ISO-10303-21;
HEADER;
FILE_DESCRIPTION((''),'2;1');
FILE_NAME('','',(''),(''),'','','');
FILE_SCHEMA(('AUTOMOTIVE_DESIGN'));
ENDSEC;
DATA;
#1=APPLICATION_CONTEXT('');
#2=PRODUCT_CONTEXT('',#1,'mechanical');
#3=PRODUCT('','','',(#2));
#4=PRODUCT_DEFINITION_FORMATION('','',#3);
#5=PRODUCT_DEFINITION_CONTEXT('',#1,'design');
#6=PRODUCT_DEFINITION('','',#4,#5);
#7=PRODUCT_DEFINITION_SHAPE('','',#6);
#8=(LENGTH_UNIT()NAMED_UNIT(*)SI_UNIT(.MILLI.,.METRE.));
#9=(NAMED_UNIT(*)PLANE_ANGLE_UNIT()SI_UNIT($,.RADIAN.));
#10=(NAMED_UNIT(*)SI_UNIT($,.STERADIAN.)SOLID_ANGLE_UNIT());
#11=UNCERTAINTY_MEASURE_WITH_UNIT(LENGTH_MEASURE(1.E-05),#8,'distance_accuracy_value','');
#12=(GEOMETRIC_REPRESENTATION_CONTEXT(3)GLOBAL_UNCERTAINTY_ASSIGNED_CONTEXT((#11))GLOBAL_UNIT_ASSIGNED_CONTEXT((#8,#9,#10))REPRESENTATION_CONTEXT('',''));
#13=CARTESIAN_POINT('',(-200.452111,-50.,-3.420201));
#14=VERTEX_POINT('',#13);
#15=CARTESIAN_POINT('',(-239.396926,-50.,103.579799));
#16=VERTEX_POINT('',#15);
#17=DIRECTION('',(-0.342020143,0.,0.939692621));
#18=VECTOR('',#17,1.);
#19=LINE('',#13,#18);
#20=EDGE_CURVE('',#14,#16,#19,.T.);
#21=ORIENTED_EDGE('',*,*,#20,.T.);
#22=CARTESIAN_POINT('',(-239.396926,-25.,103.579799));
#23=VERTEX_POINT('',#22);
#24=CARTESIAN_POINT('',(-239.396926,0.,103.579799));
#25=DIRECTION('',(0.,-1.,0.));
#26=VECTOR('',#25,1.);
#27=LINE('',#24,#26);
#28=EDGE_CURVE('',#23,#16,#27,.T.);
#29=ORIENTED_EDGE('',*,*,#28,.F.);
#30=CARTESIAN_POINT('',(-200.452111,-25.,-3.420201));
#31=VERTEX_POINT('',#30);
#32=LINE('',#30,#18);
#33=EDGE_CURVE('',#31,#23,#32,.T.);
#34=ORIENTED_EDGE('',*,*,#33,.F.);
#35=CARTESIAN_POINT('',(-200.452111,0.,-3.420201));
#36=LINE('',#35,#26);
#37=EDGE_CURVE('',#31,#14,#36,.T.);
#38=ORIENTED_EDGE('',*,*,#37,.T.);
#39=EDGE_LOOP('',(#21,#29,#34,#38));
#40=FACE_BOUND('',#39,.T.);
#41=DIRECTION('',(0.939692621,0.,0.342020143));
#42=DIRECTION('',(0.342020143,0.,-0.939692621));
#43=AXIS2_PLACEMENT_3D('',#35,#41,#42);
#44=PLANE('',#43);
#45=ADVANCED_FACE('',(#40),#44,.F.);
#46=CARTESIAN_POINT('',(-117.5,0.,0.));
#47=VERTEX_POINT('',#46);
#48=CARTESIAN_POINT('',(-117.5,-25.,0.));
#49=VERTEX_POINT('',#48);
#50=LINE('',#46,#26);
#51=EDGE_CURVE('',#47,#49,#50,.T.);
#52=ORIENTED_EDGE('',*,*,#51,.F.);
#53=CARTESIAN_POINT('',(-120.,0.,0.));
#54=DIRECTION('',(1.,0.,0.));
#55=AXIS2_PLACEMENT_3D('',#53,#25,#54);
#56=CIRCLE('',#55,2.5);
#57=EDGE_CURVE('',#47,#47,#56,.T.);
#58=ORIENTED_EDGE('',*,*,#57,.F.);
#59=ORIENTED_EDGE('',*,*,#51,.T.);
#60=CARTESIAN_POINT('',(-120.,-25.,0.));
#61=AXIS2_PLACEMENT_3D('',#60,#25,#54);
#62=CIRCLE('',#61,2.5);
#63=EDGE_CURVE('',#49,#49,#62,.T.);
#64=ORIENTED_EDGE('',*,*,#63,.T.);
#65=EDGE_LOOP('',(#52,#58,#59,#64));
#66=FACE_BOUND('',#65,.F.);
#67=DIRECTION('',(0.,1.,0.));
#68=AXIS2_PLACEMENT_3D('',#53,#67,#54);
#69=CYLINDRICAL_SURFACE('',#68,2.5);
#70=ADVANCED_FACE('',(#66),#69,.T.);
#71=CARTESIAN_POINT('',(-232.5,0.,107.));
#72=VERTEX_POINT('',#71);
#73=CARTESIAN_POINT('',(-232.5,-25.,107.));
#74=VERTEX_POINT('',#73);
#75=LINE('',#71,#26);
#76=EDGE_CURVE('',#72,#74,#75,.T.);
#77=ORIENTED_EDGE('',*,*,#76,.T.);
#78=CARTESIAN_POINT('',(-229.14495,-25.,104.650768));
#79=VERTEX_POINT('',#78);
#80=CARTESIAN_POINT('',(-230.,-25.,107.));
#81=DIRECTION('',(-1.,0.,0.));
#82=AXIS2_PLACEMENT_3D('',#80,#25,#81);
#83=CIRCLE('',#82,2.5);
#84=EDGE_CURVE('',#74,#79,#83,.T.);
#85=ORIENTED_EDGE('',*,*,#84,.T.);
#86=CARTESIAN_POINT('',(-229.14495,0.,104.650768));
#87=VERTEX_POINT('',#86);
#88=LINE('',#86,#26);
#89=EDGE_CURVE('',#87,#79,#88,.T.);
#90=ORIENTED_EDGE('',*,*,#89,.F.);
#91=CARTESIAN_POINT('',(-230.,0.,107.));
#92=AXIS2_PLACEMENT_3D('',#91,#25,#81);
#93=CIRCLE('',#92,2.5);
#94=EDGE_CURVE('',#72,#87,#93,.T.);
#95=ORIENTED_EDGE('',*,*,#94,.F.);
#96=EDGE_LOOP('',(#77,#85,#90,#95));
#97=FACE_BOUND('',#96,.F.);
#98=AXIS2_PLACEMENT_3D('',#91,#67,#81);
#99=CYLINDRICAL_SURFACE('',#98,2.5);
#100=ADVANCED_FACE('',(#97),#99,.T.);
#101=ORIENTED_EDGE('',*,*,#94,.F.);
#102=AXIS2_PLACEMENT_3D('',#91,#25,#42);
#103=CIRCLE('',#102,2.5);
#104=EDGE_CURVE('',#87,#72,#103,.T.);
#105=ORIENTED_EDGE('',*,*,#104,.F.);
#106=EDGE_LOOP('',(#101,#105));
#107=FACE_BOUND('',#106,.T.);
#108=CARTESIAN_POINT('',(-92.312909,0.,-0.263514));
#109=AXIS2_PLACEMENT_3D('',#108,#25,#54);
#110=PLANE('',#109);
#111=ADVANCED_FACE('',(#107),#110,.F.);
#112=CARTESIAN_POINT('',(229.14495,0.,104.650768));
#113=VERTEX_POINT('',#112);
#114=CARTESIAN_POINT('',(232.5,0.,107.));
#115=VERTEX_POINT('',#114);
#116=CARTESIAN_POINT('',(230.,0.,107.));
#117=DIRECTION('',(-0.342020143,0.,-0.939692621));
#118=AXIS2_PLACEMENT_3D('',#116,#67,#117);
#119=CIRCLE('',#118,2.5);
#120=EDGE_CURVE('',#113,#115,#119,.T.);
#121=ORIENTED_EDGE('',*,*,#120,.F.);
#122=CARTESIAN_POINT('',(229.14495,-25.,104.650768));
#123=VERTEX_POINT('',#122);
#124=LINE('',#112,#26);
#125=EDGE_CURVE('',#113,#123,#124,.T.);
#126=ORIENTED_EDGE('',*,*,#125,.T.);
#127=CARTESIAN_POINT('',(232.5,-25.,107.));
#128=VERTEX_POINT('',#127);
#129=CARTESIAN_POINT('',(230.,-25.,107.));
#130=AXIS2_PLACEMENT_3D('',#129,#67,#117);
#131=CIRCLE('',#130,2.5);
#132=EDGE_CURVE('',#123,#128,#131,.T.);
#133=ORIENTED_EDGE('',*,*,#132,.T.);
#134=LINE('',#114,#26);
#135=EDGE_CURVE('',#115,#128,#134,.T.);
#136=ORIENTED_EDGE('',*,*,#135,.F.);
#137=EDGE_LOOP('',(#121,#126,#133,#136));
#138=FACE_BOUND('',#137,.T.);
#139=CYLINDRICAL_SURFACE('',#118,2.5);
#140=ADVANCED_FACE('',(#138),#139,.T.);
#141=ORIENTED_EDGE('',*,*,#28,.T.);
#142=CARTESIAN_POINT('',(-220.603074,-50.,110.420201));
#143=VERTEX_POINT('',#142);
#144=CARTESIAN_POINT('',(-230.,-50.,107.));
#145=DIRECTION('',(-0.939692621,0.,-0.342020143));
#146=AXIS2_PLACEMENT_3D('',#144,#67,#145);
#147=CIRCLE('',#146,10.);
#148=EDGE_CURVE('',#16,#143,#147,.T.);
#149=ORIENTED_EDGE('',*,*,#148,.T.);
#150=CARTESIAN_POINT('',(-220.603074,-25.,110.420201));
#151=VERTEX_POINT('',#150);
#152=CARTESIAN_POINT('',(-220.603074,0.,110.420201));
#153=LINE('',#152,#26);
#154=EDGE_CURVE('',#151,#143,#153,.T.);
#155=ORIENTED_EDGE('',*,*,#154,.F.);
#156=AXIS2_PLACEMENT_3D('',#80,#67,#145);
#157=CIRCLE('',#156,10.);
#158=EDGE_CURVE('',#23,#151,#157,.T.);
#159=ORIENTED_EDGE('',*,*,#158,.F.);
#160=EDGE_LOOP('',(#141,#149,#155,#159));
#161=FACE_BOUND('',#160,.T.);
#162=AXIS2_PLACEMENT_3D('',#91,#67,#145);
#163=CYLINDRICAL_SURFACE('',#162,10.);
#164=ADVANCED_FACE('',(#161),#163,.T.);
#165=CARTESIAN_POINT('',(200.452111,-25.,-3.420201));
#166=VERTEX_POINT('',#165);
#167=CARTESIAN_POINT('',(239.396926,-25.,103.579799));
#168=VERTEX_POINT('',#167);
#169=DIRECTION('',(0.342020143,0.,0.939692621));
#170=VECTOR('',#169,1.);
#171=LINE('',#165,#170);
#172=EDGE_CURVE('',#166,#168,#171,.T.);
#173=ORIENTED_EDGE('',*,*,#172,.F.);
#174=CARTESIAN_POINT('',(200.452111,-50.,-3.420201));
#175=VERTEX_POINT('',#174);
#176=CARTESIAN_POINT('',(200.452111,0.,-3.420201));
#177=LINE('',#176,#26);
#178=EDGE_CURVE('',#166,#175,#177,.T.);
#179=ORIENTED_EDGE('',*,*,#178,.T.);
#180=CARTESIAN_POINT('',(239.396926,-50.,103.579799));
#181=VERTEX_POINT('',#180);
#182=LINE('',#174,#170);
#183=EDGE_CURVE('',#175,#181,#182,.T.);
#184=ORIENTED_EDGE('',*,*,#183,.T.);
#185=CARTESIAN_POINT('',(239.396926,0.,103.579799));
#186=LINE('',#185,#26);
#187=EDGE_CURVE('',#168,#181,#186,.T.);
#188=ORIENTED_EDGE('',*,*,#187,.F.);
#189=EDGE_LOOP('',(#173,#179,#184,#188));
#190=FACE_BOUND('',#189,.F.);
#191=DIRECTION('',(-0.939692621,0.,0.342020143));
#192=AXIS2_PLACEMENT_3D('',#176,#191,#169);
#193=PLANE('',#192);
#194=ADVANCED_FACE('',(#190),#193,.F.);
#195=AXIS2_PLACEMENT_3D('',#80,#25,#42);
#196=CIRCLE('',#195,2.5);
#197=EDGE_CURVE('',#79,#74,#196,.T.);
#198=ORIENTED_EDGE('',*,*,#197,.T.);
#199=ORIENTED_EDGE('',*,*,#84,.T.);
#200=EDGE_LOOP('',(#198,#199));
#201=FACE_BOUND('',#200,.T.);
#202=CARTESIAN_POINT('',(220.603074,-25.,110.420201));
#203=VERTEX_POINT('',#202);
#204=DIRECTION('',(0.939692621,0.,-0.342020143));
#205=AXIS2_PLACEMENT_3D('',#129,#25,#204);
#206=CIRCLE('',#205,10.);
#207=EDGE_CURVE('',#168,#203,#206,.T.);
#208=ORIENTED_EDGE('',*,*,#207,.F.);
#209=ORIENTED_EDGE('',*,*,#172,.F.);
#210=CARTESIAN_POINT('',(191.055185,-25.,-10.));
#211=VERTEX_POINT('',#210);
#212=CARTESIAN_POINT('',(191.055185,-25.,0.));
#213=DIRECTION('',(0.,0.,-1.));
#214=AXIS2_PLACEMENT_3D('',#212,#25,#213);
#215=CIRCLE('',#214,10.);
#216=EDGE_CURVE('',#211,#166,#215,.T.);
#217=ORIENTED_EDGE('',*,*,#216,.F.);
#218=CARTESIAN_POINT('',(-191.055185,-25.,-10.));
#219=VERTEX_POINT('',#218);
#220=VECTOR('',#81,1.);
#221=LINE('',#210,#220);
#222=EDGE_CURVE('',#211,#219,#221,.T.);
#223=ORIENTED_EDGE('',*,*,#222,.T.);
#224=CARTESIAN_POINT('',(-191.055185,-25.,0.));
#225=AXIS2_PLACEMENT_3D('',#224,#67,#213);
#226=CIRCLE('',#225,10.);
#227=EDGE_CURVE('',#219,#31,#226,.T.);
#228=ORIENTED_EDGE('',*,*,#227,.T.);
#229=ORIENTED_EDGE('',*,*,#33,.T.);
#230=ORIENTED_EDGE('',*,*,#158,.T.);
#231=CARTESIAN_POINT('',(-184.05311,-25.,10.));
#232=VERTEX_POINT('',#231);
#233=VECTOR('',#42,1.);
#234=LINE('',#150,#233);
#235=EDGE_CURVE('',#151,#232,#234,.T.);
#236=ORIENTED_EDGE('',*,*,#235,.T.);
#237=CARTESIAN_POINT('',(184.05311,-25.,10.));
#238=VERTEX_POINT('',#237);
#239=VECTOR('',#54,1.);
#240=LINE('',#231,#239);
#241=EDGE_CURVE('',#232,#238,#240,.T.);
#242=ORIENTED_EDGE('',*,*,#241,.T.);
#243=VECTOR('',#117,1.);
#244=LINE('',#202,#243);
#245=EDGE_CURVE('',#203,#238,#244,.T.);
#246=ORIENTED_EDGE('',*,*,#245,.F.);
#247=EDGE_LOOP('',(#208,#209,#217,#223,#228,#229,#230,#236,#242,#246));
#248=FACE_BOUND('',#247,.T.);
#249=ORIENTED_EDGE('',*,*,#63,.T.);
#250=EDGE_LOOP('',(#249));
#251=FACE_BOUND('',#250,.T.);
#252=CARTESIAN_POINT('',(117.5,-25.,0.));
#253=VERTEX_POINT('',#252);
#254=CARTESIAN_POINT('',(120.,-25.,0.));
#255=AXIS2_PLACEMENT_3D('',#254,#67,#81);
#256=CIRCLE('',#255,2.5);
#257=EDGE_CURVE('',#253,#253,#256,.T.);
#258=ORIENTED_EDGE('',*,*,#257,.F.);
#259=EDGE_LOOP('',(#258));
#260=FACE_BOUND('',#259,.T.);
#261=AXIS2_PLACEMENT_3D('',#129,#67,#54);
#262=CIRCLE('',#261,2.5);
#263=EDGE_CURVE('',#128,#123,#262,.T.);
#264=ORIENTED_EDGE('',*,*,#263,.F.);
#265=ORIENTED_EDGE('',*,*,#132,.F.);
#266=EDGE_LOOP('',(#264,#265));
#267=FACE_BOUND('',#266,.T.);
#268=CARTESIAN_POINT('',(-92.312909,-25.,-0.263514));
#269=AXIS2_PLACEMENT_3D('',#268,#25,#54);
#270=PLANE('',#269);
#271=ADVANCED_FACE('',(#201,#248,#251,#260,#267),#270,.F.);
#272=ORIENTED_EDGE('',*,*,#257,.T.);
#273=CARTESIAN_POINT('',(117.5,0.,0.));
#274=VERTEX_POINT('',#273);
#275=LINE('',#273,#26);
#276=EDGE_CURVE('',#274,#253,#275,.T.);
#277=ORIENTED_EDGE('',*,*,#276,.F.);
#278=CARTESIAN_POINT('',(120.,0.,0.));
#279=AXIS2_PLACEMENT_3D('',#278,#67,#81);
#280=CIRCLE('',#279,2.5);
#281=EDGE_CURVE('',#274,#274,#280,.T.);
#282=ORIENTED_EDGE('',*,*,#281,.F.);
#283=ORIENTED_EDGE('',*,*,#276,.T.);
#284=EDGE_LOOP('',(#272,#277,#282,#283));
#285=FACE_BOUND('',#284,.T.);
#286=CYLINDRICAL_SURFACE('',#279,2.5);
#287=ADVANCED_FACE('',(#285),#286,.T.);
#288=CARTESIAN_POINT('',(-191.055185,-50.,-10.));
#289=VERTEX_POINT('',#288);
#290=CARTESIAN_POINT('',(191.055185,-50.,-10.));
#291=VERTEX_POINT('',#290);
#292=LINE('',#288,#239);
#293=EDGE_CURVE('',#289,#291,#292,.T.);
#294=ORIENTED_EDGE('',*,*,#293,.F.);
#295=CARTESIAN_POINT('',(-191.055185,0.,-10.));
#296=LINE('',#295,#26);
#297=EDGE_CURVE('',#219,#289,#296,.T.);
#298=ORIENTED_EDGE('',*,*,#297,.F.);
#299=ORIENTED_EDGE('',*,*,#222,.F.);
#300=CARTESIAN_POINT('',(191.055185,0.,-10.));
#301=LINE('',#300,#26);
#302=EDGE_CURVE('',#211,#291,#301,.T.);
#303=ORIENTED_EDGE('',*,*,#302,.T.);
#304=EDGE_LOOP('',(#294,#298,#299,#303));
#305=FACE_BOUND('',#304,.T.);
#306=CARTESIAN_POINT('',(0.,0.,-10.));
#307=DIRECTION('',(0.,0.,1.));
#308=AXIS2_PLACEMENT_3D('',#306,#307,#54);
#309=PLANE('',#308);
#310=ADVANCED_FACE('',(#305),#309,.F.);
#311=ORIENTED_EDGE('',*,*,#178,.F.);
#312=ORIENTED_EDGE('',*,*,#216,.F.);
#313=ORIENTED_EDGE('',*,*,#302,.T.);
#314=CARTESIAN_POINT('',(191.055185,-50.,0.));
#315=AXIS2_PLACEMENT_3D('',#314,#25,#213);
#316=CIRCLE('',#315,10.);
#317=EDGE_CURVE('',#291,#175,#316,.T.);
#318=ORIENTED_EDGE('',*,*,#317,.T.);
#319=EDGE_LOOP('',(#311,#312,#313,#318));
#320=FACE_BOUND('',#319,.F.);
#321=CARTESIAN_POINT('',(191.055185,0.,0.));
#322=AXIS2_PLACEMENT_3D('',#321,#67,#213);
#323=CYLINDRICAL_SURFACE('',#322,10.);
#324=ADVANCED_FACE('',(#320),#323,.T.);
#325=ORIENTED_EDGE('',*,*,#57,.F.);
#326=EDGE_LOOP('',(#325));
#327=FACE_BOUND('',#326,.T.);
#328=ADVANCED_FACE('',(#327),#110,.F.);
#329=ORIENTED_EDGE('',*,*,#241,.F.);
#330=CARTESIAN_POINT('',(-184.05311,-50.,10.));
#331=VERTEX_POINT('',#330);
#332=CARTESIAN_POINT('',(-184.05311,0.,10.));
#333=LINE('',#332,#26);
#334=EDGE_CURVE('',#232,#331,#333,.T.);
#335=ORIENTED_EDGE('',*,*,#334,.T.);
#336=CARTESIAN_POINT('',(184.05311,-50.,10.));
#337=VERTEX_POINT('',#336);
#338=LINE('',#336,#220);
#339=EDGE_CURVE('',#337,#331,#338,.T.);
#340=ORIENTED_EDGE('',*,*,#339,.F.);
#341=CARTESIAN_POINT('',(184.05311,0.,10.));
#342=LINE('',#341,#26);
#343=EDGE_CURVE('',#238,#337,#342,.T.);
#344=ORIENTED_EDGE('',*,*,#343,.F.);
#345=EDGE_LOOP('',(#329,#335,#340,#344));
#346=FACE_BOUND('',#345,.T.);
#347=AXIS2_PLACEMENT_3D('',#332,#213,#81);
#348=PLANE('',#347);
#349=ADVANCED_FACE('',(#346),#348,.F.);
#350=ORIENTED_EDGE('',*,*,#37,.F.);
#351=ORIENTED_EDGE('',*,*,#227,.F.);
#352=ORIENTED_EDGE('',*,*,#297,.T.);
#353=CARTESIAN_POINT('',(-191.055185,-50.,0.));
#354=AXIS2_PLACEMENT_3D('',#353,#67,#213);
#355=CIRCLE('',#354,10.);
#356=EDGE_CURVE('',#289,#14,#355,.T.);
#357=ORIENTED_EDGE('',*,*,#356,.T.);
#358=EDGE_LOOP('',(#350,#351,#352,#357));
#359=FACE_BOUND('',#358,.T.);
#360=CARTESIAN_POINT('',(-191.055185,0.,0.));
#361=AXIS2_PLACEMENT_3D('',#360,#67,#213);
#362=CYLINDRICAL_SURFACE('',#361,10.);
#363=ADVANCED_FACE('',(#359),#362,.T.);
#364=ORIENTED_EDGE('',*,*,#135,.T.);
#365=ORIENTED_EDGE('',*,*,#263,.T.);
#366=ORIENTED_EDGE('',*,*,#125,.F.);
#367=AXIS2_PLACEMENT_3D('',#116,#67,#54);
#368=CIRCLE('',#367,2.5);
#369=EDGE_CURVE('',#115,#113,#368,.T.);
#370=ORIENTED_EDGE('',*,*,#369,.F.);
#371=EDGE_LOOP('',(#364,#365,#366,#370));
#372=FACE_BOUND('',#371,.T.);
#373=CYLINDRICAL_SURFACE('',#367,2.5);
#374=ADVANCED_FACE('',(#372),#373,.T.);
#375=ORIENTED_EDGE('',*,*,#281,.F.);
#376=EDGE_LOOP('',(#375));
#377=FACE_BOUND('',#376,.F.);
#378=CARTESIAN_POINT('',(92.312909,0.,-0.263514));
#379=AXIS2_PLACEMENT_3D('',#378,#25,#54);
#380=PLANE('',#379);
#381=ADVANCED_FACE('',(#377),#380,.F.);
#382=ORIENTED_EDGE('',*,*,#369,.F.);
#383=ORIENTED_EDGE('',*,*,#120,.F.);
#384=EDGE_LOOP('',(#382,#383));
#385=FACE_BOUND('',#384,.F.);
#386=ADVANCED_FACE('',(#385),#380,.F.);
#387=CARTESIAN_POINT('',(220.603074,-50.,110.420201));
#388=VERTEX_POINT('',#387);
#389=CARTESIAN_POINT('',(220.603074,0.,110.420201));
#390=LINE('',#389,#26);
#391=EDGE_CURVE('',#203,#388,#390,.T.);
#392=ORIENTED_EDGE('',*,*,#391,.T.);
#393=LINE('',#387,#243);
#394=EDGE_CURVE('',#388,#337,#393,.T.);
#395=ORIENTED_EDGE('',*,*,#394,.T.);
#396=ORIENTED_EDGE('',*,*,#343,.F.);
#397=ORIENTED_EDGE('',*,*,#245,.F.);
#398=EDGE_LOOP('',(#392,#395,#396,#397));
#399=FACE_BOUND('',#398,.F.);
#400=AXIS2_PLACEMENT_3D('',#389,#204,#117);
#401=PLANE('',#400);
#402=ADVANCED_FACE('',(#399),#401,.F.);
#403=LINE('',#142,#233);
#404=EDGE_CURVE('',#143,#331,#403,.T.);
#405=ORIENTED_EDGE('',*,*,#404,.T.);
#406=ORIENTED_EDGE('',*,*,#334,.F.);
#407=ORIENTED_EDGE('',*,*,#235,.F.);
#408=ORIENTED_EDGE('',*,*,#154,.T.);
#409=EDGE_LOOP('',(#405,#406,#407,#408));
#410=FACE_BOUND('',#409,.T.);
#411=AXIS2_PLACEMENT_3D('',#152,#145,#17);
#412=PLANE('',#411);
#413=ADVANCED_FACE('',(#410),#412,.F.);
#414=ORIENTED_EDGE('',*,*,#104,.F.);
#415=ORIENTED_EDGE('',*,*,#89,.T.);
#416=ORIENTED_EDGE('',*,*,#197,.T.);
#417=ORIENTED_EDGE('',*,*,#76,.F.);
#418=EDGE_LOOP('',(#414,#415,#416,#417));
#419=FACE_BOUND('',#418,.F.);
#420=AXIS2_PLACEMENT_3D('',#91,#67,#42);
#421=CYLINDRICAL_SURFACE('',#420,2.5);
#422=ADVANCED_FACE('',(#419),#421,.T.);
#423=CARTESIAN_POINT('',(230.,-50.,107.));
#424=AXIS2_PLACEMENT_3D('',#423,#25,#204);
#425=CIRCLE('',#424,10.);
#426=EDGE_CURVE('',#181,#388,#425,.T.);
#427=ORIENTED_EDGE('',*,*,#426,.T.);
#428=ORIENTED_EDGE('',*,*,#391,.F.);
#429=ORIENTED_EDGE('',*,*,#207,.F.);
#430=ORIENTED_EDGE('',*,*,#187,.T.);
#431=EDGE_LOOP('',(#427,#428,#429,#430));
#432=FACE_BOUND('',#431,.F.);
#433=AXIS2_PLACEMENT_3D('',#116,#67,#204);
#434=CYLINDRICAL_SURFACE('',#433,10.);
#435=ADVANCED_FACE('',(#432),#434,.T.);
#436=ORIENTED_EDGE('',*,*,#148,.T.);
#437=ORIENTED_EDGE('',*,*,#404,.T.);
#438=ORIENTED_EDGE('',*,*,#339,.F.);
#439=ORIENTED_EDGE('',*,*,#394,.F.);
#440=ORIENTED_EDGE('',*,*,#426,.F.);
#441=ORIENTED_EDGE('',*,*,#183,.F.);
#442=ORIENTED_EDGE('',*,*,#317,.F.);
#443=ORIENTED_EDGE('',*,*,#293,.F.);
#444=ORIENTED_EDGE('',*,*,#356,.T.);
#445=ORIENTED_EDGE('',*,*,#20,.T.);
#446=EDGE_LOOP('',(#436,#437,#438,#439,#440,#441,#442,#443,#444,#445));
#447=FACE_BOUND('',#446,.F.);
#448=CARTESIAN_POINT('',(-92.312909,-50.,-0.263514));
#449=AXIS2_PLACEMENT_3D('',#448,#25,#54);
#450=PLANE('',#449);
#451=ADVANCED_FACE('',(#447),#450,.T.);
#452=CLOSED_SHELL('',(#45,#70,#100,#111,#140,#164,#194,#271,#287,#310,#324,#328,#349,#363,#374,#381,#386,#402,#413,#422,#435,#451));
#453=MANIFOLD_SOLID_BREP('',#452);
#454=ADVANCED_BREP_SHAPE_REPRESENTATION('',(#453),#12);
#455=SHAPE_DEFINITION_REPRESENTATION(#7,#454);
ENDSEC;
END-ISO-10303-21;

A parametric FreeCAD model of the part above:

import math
import FreeCAD as App
import Part
import Sketcher

V = App.Vector
Q = App.Units.Quantity

doc = App.newDocument("Part")
body = doc.addObject("PartDesign::Body", "Body")

# Sketch on XZ plane
sketch1 = doc.addObject("Sketcher::SketchObject", "Sketch")
body.addObject(sketch1)
sketch1.AttachmentSupport = (doc.XZ_Plane, [""])
sketch1.MapMode = "FlatFace"
sketch1.addGeometry([
    Part.ArcOfCircle(Part.Circle(V(230, 107, 0), V(0, 0, 1), 10), math.radians(-20), math.radians(160)),  # 0
    Part.LineSegment(V(220.603074, 110.420201, 0), V(184.05311, 10, 0)),  # 1
    Part.LineSegment(V(184.05311, 10, 0), V(0, 10, 0)),  # 2
    Part.ArcOfCircle(Part.Circle(V(0, 0, 0), V(0, 0, 1), 10), math.radians(90), math.radians(270)),  # 3
    Part.LineSegment(V(0, -10, 0), V(191.055185, -10, 0)),  # 4
    Part.ArcOfCircle(Part.Circle(V(191.055185, 0, 0), V(0, 0, 1), 10), math.radians(-90), math.radians(-20)),  # 5
    Part.LineSegment(V(200.452111, -3.420201, 0), V(239.396926, 103.579799, 0)),  # 6
], False)
sketch1.addConstraint([
    Sketcher.Constraint("Tangent", 0, 2, 1, 1),
    Sketcher.Constraint("Coincident", 1, 2, 2, 1),
    Sketcher.Constraint("Tangent", 2, 2, 3, 1),
    Sketcher.Constraint("Tangent", 3, 2, 4, 1),
    Sketcher.Constraint("Tangent", 4, 2, 5, 1),
    Sketcher.Constraint("Tangent", 5, 2, 6, 1),
    Sketcher.Constraint("Tangent", 6, 2, 0, 1),
    Sketcher.Constraint("Horizontal", 2),
    Sketcher.Constraint("Horizontal", 4),
    Sketcher.Constraint("Coincident", 3, 3, -1, 1),
    Sketcher.Constraint("Equal", 0, 3),
    Sketcher.Constraint("Equal", 3, 5),
    Sketcher.Constraint("Parallel", 1, 6),
    Sketcher.Constraint("Radius", 0, Q("10 mm")),
    Sketcher.Constraint("Angle", 1, Q("-110 deg")),
    Sketcher.Constraint("DistanceX", -1, 1, 0, 3, Q("230 mm")),
    Sketcher.Constraint("DistanceY", -1, 1, 0, 3, Q("107 mm")),
])
pad1 = doc.addObject("PartDesign::Pad", "Pad")
body.addObject(pad1)
pad1.Profile = sketch1
pad1.Length = 50

# Sketch on XZ plane
sketch2 = doc.addObject("Sketcher::SketchObject", "Sketch001")
body.addObject(sketch2)
sketch2.AttachmentSupport = (doc.XZ_Plane, [""])
sketch2.MapMode = "FlatFace"
sketch2.addGeometry([
    Part.LineSegment(V(184.05311, 10, 0), V(0, 10, 0)),  # 0
    Part.ArcOfCircle(Part.Circle(V(0, 0, 0), V(0, 0, 1), 10), math.radians(90), math.radians(270)),  # 1
    Part.LineSegment(V(0, -10, 0), V(191.055185, -10, 0)),  # 2
    Part.ArcOfCircle(Part.Circle(V(191.055185, 0, 0), V(0, 0, 1), 10), math.radians(-90), math.radians(-20)),  # 3
    Part.LineSegment(V(200.452111, -3.420201, 0), V(239.396926, 103.579799, 0)),  # 4
    Part.ArcOfCircle(Part.Circle(V(230, 107, 0), V(0, 0, 1), 10), math.radians(-20), math.radians(160)),  # 5
    Part.LineSegment(V(220.603074, 110.420201, 0), V(184.05311, 10, 0)),  # 6
    Part.Circle(V(120, 0, 0), V(0, 0, 1), 2.5),  # 7
    Part.ArcOfCircle(Part.Circle(V(230, 107, 0), V(0, 0, 1), 2.5), math.radians(0), math.radians(250)),  # 8
    Part.ArcOfCircle(Part.Circle(V(230, 107, 0), V(0, 0, 1), 2.5), math.radians(-110), math.radians(0)),  # 9
], False)
sketch2.addConstraint([
    Sketcher.Constraint("Tangent", 0, 2, 1, 1),
    Sketcher.Constraint("Tangent", 1, 2, 2, 1),
    Sketcher.Constraint("Tangent", 2, 2, 3, 1),
    Sketcher.Constraint("Tangent", 3, 2, 4, 1),
    Sketcher.Constraint("Tangent", 4, 2, 5, 1),
    Sketcher.Constraint("Tangent", 5, 2, 6, 1),
    Sketcher.Constraint("Coincident", 6, 2, 0, 1),
    Sketcher.Constraint("Tangent", 8, 1, 9, 2),
    Sketcher.Constraint("Coincident", 9, 1, 8, 2),
    Sketcher.Constraint("Horizontal", 0),
    Sketcher.Constraint("Horizontal", 2),
    Sketcher.Constraint("Coincident", 1, 3, -1, 1),
    Sketcher.Constraint("Coincident", 8, 3, 5, 3),
    Sketcher.Constraint("Equal", 1, 3),
    Sketcher.Constraint("Equal", 3, 5),
    Sketcher.Constraint("Equal", 7, 8),
    Sketcher.Constraint("PointOnObject", 7, 3, -1),
    Sketcher.Constraint("Parallel", 4, 6),
    Sketcher.Constraint("Horizontal", 9, 3, 8, 1),
    Sketcher.Constraint("Diameter", 7, Q("5 mm")),
    Sketcher.Constraint("Radius", 1, Q("10 mm")),
    Sketcher.Constraint("Angle", 4, Q("70 deg")),
    Sketcher.Constraint("DistanceX", -1, 1, 5, 3, Q("230 mm")),
    Sketcher.Constraint("DistanceY", -1, 1, 5, 3, Q("107 mm")),
    Sketcher.Constraint("DistanceX", -1, 1, 7, 3, Q("120 mm")),
    Sketcher.Constraint("DistanceX", -1, 1, 9, 1, Q("229.14495 mm")),
])
pocket1 = doc.addObject("PartDesign::Pocket", "Pocket")
body.addObject(pocket1)
pocket1.Profile = sketch2
pocket1.Length = 25
pocket1.Reversed = True
body2 = doc.addObject("PartDesign::Body", "Body001")
doc.recompute()

body2.BaseFeature = body
doc.recompute()

mirroring = doc.addObject("Part::Mirroring", "Mirroring")
mirroring.Source = body
mirroring.Base = V(0, 0, 0)
mirroring.Normal = V(1, 0, 0)
body3 = doc.addObject("PartDesign::Body", "Body002")
body3.BaseFeature = mirroring
boolean = doc.addObject("PartDesign::Boolean", "Boolean")
body2.addObject(boolean)
boolean.Type = "Fuse"
boolean.addObjects([body3])
doc.recompute()
body4 = doc.addObject("PartDesign::Body", "Body003")
doc.recompute()

body4.BaseFeature = body2
doc.recompute()
body2.Visibility = False
mirroring.Visibility = False

doc.recompute()
